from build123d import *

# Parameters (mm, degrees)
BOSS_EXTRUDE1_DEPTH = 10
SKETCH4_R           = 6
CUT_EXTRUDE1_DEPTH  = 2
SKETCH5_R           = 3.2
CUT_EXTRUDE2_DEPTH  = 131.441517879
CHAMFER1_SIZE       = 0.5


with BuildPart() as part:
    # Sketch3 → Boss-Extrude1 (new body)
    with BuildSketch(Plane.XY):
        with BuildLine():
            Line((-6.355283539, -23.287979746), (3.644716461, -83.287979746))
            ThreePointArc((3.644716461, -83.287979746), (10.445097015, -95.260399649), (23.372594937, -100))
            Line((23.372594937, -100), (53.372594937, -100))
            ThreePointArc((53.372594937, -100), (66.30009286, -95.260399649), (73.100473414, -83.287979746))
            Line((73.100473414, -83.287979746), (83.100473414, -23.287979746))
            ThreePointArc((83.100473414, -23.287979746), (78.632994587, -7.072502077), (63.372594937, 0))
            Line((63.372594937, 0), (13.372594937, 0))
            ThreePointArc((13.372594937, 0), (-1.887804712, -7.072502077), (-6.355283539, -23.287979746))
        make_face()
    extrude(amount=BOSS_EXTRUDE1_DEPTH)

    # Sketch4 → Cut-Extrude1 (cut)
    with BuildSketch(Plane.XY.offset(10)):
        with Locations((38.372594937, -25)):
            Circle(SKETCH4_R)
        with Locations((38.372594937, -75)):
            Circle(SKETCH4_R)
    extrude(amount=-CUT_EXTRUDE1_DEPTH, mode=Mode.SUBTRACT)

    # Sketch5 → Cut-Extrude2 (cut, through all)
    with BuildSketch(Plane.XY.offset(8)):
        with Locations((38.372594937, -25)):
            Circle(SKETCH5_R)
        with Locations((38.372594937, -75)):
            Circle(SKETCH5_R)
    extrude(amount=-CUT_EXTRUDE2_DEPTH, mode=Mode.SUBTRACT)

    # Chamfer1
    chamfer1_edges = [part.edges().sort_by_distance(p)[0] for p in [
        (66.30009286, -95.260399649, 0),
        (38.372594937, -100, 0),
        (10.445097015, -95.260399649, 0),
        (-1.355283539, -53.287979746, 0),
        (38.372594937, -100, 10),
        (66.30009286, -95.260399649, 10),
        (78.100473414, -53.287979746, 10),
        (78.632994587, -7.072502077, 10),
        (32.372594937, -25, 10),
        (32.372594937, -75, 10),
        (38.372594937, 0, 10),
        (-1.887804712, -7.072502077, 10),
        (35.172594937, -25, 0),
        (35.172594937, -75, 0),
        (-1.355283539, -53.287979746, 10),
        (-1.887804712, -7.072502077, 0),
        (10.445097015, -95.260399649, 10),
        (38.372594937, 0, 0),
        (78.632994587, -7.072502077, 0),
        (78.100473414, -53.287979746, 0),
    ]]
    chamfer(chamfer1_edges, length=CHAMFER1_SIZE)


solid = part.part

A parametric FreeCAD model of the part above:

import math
import FreeCAD as App
import Part
import Sketcher
Q = App.Units.Quantity


def edges_at(feature, points):
    """Names of the edges that pass closest to the given points."""
    edges = feature.Shape.Edges
    near = lambda p: min(range(len(edges)), key=lambda i: edges[i].distToShape(Part.Vertex(*p))[0])
    return sorted({f"Edge{near(p) + 1}" for p in points})

doc = App.newDocument("Part")
body = doc.addObject("PartDesign::Body", "Body")

sketch1 = body.newObject("Sketcher::SketchObject", "Sketch")
sketch1.AttachmentSupport = (doc.getObject("XY_Plane"), [""])
sketch1.MapMode = "FlatFace"
sketch1.addGeometry([
    Part.LineSegment(App.Vector(-6, -23, 0), App.Vector(4, -83, 0)),
    Part.ArcOfCircle(Part.Circle(App.Vector(23, -80, 0), App.Vector(0, 0, 1), 20), math.radians(-171), math.radians(-90)),
    Part.LineSegment(App.Vector(23, -100, 0), App.Vector(53, -100, 0)),
    Part.ArcOfCircle(Part.Circle(App.Vector(53, -80, 0), App.Vector(0, 0, 1), 20), math.radians(-90), math.radians(-9)),
    Part.LineSegment(App.Vector(73, -83, 0), App.Vector(83, -23, 0)),
    Part.ArcOfCircle(Part.Circle(App.Vector(63, -20, 0), App.Vector(0, 0, 1), 20), math.radians(-9), math.radians(90)),
    Part.LineSegment(App.Vector(63, 0, 0), App.Vector(13, 0, 0)),
    Part.ArcOfCircle(Part.Circle(App.Vector(13, -20, 0), App.Vector(0, 0, 1), 20), math.radians(90), math.radians(189)),
], False)
sketch1.addConstraint([
    Sketcher.Constraint("Tangent", 0, 2, 1, 1),
    Sketcher.Constraint("Tangent", 1, 2, 2, 1),
    Sketcher.Constraint("Tangent", 2, 2, 3, 1),
    Sketcher.Constraint("Tangent", 3, 2, 4, 1),
    Sketcher.Constraint("Tangent", 4, 2, 5, 1),
    Sketcher.Constraint("Tangent", 5, 2, 6, 1),
    Sketcher.Constraint("Tangent", 6, 2, 7, 1),
    Sketcher.Constraint("Tangent", 7, 2, 0, 1),
    Sketcher.Constraint("Horizontal", 2),
    Sketcher.Constraint("Horizontal", 6),
    Sketcher.Constraint("Equal", 1, 3),
    Sketcher.Constraint("Equal", 3, 5),
    Sketcher.Constraint("Equal", 5, 7),
    Sketcher.Constraint("PointOnObject", 5, 2, -1),
    Sketcher.Constraint("Horizontal", 0, 2, 3, 2),
    Sketcher.Constraint("Radius", 1, Q("20 mm")),
    Sketcher.Constraint("DistanceX", 2, 1, 2, 2, Q("30 mm")),
    Sketcher.Constraint("DistanceX", 6, 2, 6, 1, Q("50 mm")),
    Sketcher.Constraint("DistanceY", 1, 3, -1, 1, Q("80 mm")),
    Sketcher.Constraint("DistanceX", -1, 1, 1, 3, Q("23.372595 mm")),
])
pad1 = body.newObject("PartDesign::Pad", "Pad")
pad1.Profile = sketch1
pad1.Length = 10

sketch2 = body.newObject("Sketcher::SketchObject", "Sketch001")
sketch2.AttachmentSupport = (doc.getObject("XY_Plane"), [""])
sketch2.MapMode = "FlatFace"
sketch2.AttachmentOffset = App.Placement(App.Vector(0, 0, 10), App.Rotation())
sketch2.addGeometry([
    Part.Circle(App.Vector(38, -25, 0), App.Vector(0, 0, 1), 6),
    Part.Circle(App.Vector(38, -75, 0), App.Vector(0, 0, 1), 6),
], False)
sketch2.addConstraint([
    Sketcher.Constraint("Equal", 0, 1),
    Sketcher.Constraint("Vertical", 0, 3, 1, 3),
    Sketcher.Constraint("Diameter", 0, Q("12 mm")),
    Sketcher.Constraint("DistanceY", 0, 3, -1, 1, Q("25 mm")),
    Sketcher.Constraint("DistanceY", 1, 3, -1, 1, Q("75 mm")),
    Sketcher.Constraint("DistanceX", -1, 1, 0, 3, Q("38.372595 mm")),
])
pocket1 = body.newObject("PartDesign::Pocket", "Pocket")
pocket1.Profile = sketch2
pocket1.Length = 2

sketch3 = body.newObject("Sketcher::SketchObject", "Sketch002")
sketch3.AttachmentSupport = (doc.getObject("XY_Plane"), [""])
sketch3.MapMode = "FlatFace"
sketch3.AttachmentOffset = App.Placement(App.Vector(0, 0, 8), App.Rotation())
sketch3.addGeometry([
    Part.Circle(App.Vector(38.4, -25, 0), App.Vector(0, 0, 1), 3.2),
    Part.Circle(App.Vector(38.4, -75, 0), App.Vector(0, 0, 1), 3.2),
], False)
sketch3.addConstraint([
    Sketcher.Constraint("Equal", 0, 1),
    Sketcher.Constraint("Vertical", 0, 3, 1, 3),
    Sketcher.Constraint("Diameter", 0, Q("6.4 mm")),
    Sketcher.Constraint("DistanceY", 0, 3, -1, 1, Q("25 mm")),
    Sketcher.Constraint("DistanceY", 1, 3, -1, 1, Q("75 mm")),
    Sketcher.Constraint("DistanceX", -1, 1, 0, 3, Q("38.372595 mm")),
])
pocket2 = body.newObject("PartDesign::Pocket", "Pocket001")
pocket2.Profile = sketch3
pocket2.Type = "ThroughAll"
doc.recompute()

chamfer = body.newObject("PartDesign::Chamfer", "Chamfer")
chamfer.Base = (pocket2, edges_at(pocket2, [
    (66.3, -95.26, 0),
    (38.373, -100, 0),
    (10.445, -95.26, 0),
    (-1.355, -53.288, 0),
    (38.373, -100, 10),
    (66.3, -95.26, 10),
    (78.1, -53.288, 10),
    (78.633, -7.073, 10),
    (32.373, -25, 10),
    (32.373, -75, 10),
    (38.373, 0, 10),
    (-1.888, -7.073, 10),
    (35.173, -25, 0),
    (35.173, -75, 0),
    (-1.355, -53.288, 10),
    (-1.888, -7.073, 0),
    (10.445, -95.26, 10),
    (38.373, 0, 0),
    (78.633, -7.073, 0),
    (78.1, -53.288, 0),
]))
chamfer.Size = 0.5

doc.recompute()
